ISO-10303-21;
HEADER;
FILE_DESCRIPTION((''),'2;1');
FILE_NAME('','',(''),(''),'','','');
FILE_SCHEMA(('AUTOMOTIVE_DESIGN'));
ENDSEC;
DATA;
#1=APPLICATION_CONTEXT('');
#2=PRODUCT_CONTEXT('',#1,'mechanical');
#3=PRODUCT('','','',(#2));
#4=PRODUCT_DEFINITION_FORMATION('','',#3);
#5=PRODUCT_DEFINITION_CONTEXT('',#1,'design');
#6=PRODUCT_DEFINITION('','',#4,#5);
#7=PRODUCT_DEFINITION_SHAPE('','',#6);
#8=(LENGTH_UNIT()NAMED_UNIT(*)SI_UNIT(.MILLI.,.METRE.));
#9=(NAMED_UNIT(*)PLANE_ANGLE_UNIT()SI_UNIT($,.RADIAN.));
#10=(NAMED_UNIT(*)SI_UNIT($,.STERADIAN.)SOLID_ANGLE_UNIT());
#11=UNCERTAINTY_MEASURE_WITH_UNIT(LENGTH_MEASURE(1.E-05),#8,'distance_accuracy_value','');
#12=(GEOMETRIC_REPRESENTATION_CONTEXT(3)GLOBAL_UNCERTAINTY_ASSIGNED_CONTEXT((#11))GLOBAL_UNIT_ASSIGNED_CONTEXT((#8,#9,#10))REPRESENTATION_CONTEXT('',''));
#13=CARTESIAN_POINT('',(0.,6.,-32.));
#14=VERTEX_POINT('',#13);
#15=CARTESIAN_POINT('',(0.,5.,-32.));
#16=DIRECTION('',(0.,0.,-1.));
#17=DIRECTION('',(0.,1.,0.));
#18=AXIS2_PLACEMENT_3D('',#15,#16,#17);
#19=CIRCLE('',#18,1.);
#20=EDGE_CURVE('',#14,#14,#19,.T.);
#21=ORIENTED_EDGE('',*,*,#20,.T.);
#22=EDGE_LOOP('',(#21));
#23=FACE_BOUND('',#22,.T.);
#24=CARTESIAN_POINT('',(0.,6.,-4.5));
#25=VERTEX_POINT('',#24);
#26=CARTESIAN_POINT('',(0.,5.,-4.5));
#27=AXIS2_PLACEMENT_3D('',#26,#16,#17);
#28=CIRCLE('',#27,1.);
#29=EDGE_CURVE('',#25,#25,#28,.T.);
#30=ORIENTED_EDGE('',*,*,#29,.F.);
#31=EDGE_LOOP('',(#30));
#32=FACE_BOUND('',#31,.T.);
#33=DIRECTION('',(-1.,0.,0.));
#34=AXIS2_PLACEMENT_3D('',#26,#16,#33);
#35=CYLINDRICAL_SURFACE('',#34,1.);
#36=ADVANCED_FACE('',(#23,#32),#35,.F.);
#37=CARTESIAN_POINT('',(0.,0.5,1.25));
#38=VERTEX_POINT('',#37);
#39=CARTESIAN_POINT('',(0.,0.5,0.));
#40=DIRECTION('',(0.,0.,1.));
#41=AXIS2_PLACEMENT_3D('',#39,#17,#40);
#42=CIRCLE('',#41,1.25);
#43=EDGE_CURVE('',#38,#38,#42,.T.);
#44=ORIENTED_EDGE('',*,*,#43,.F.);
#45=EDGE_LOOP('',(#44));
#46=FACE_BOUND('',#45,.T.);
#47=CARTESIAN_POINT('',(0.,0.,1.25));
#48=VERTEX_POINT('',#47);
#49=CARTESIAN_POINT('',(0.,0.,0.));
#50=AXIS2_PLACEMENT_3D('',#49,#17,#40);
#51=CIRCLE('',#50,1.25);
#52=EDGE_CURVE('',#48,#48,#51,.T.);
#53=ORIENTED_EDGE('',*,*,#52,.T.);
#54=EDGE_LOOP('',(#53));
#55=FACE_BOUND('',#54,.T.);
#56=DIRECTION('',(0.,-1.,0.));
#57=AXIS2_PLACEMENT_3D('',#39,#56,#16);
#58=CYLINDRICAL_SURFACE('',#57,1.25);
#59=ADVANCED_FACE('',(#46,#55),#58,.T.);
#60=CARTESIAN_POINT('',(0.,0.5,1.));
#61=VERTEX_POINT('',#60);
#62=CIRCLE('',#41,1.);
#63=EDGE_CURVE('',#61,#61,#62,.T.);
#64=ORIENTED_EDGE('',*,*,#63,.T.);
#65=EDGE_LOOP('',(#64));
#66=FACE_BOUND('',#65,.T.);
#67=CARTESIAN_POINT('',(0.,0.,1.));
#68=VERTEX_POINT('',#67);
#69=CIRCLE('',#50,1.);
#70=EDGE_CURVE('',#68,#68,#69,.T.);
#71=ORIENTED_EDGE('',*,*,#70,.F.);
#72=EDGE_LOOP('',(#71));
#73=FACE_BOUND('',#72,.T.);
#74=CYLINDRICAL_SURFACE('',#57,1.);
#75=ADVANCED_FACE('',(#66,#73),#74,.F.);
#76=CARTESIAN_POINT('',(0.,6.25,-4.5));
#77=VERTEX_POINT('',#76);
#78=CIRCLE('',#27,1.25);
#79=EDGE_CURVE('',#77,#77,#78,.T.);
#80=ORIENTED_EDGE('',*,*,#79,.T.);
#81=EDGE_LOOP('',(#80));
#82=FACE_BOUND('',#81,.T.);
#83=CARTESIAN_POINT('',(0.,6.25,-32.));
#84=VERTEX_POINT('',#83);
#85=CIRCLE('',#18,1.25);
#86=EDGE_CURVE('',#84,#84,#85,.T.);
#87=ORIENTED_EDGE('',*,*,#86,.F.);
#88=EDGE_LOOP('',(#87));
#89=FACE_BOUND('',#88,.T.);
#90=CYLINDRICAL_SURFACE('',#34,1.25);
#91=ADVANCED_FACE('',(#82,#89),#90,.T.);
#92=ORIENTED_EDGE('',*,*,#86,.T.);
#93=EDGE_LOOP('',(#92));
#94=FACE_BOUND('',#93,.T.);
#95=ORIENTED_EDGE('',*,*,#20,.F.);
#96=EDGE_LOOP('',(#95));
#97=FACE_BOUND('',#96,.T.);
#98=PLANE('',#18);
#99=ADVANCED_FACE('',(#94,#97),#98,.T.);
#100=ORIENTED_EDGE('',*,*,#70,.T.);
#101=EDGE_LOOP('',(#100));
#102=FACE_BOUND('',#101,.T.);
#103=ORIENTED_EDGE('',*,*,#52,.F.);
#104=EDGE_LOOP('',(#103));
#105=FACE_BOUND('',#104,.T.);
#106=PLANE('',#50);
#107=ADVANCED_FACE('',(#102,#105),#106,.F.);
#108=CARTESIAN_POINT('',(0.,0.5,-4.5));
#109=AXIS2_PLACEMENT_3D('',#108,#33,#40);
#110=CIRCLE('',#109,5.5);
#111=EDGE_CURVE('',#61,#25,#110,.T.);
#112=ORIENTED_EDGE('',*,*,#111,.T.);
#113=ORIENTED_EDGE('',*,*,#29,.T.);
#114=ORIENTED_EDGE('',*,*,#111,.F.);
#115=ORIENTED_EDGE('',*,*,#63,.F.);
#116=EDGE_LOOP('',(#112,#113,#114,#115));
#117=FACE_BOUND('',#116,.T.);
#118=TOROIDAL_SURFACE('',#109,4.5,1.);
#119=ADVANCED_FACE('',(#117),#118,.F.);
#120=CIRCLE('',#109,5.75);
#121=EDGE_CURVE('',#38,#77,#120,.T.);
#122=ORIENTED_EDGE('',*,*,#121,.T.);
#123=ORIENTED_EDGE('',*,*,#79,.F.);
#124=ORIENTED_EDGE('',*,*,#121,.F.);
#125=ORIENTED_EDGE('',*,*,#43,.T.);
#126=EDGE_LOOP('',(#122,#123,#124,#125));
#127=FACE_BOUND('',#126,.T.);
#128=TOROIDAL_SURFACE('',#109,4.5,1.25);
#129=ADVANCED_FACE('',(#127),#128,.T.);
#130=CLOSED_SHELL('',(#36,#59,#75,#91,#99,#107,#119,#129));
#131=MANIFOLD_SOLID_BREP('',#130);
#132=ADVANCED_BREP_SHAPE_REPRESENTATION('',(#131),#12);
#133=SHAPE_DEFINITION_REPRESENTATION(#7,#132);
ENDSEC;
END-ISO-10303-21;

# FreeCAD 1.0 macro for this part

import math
import FreeCAD as App
import Part
import Sketcher
Q = App.Units.Quantity

doc = App.newDocument("Part")
body = doc.addObject("PartDesign::Body", "Body")

# Sketch on XZ plane
sketch1 = body.newObject("Sketcher::SketchObject", "Sketch")
sketch1.AttachmentSupport = (doc.getObject("XZ_Plane"), [""])
sketch1.MapMode = "FlatFace"
sketch1.addGeometry([
    Part.Circle(App.Vector(0, 0, 0), App.Vector(0, 0, 1), 1.2),
    Part.Circle(App.Vector(0, 0, 0), App.Vector(0, 0, 1), 1),
], False)
sketch1.addConstraint([
    Sketcher.Constraint("Coincident", 0, 3, -1, 1),
    Sketcher.Constraint("Coincident", 1, 3, -1, 1),
    Sketcher.Constraint("Diameter", 1, Q("2 mm")),
    Sketcher.Constraint("Diameter", 0, Q("2.5 mm")),
])

# Sketch on YZ plane
sketch2 = body.newObject("Sketcher::SketchObject", "Sketch001")
sketch2.AttachmentSupport = (doc.getObject("YZ_Plane"), [""])
sketch2.MapMode = "FlatFace"
sketch2.addGeometry([
    Part.LineSegment(App.Vector(0, 0, 0), App.Vector(0.5, 0, 0)),
    Part.ArcOfCircle(Part.Circle(App.Vector(0.5, -4.5, 0), App.Vector(0, 0, 1), 4.5), math.radians(0), math.radians(90)),
    Part.LineSegment(App.Vector(5, -4.5, 0), App.Vector(5, -32, 0)),
], False)
sketch2.addConstraint([
    Sketcher.Constraint("Tangent", 0, 2, 1, 2),
    Sketcher.Constraint("Tangent", 1, 1, 2, 1),
    Sketcher.Constraint("Horizontal", 0),
    Sketcher.Constraint("Vertical", 2),
    Sketcher.Constraint("Coincident", 0, 1, -1, 1),
    Sketcher.Constraint("Radius", 1, Q("4.5 mm")),
    Sketcher.Constraint("DistanceX", 0, 1, 0, 2, Q("0.5 mm")),
    Sketcher.Constraint("DistanceY", 2, 2, 2, 1, Q("27.5 mm")),
])
doc.recompute()

additivepipe = body.newObject("PartDesign::AdditivePipe", "AdditivePipe")
additivepipe.Profile = sketch1
additivepipe.Spine = (sketch2, ["Edge1", "Edge2", "Edge3"])

doc.recompute()
